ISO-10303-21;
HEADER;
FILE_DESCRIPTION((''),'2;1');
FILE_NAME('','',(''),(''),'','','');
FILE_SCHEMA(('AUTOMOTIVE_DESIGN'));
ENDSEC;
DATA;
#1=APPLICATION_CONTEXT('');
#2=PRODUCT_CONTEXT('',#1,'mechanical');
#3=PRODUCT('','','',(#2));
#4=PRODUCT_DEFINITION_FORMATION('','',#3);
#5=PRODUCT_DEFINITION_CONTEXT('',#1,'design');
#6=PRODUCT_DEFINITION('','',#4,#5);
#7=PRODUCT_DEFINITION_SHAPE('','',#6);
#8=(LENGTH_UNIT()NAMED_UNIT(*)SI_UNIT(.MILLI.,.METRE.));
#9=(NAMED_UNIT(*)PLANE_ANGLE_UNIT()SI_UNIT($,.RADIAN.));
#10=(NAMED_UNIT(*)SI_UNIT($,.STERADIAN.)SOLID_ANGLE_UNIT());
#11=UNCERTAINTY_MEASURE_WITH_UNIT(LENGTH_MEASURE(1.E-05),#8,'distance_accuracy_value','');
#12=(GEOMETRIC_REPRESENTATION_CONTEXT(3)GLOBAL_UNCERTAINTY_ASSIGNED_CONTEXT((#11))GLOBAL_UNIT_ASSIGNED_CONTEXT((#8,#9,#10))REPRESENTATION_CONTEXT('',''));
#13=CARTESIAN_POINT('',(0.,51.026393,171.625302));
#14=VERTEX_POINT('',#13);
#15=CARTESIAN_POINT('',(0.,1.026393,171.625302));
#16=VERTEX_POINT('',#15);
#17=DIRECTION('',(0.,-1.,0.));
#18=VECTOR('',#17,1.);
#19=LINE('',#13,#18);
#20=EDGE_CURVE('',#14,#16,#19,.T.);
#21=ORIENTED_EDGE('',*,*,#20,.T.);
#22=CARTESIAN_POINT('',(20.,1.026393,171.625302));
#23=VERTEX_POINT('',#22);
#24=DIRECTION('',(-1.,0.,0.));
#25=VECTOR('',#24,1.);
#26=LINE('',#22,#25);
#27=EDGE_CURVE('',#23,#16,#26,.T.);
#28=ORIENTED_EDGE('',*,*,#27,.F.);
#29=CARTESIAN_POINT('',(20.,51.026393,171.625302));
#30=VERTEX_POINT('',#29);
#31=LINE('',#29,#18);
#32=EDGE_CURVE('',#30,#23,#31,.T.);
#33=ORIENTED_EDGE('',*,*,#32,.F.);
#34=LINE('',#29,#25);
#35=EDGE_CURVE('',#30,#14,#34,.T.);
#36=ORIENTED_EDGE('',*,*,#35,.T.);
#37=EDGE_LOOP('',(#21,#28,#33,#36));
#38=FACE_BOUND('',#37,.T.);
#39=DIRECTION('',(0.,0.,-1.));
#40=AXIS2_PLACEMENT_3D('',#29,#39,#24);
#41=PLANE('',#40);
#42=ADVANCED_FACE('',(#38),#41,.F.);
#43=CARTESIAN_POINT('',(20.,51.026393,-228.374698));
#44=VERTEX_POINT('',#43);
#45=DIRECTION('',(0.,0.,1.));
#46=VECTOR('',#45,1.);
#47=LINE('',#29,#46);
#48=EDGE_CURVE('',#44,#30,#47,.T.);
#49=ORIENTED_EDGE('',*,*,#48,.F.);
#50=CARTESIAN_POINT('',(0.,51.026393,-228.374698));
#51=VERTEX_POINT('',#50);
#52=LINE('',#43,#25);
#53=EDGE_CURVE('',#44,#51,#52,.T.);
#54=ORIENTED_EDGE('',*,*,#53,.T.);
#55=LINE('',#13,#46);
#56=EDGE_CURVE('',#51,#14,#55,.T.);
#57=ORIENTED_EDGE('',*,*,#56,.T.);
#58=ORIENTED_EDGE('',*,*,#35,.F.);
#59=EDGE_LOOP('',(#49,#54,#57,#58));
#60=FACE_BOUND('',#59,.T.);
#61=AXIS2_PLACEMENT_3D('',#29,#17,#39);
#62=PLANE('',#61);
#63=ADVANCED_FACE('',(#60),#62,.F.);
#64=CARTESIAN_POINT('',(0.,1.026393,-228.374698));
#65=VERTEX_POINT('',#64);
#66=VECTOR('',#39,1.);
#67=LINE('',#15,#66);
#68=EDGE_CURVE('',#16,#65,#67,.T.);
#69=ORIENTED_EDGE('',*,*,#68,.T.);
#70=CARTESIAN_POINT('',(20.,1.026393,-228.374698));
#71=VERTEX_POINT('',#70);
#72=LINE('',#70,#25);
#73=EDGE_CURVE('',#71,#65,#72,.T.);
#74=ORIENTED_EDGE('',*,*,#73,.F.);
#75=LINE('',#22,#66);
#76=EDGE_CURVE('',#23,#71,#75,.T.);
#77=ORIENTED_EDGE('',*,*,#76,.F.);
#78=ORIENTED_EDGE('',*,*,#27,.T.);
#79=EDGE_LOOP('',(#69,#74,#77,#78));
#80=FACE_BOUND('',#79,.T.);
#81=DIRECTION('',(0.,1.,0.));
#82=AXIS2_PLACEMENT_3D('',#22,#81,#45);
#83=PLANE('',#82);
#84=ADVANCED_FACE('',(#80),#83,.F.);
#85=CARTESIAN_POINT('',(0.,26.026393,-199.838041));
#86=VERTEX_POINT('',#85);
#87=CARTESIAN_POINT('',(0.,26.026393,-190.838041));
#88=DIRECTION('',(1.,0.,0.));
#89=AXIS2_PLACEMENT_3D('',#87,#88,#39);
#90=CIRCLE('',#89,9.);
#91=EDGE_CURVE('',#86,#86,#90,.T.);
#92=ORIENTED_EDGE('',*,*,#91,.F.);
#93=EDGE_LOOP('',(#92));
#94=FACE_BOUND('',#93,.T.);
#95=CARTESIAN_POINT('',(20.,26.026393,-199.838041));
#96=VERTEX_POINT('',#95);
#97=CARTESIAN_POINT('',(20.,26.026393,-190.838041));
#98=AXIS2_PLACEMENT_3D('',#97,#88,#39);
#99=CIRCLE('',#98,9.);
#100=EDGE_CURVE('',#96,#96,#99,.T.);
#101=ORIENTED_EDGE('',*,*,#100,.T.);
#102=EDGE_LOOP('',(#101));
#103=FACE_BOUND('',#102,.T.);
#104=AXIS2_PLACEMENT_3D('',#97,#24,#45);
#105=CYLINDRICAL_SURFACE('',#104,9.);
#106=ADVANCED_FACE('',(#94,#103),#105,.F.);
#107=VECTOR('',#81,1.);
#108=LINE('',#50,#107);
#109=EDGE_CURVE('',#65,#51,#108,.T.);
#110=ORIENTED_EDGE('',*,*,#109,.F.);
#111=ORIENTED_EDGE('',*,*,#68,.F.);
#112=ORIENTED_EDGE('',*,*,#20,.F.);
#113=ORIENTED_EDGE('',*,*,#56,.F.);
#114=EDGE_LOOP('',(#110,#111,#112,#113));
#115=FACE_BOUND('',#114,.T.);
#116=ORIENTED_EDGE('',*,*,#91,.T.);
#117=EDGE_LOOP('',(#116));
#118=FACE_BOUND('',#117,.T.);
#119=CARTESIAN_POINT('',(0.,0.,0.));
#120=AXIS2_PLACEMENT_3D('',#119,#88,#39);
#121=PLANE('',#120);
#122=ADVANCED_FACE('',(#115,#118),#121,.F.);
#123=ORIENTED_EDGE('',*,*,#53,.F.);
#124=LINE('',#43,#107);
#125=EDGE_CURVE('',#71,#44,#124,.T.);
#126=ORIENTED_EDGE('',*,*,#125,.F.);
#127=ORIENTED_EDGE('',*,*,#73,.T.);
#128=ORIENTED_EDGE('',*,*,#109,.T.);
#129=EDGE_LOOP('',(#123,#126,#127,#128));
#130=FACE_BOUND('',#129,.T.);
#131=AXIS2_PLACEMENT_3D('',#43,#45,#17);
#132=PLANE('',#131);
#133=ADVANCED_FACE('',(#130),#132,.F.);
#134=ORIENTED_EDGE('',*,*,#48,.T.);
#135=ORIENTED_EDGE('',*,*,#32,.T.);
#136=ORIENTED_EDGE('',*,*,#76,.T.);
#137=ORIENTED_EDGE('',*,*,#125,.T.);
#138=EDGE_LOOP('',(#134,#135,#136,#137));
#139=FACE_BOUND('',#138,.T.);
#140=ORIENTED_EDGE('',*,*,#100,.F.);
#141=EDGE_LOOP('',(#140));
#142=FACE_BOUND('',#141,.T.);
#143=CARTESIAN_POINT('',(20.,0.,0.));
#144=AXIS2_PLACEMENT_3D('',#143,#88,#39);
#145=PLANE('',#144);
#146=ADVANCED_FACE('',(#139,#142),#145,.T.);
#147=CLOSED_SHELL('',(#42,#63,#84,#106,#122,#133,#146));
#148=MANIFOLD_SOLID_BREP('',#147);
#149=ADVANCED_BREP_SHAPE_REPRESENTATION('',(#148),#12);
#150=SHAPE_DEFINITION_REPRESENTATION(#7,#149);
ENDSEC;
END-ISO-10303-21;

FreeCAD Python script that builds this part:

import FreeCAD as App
import Part
import Sketcher
Q = App.Units.Quantity


def add_polygon(sketch, points):
    """Adds a closed chain of lines whose ends are joined by coincident constraints."""
    first, n = sketch.GeometryCount, len(points)
    for a, b in zip(points, points[1:] + points[:1]):
        sketch.addGeometry(Part.LineSegment(App.Vector(*a, 0), App.Vector(*b, 0)), False)
    for i in range(n):
        sketch.addConstraint(Sketcher.Constraint("Coincident", first + i, 2, first + (i + 1) % n, 1))

doc = App.newDocument("Part")
body = doc.addObject("PartDesign::Body", "Body")

# Sketch on YZ plane
sketch1 = body.newObject("Sketcher::SketchObject", "Sketch")
sketch1.AttachmentSupport = (doc.getObject("YZ_Plane"), [""])
sketch1.MapMode = "FlatFace"
add_polygon(sketch1, [(51, 172), (1, 172), (1, -228), (51, -228)])  # lines 0-3
sketch1.addGeometry(Part.Circle(App.Vector(26, -191, 0), App.Vector(0, 0, 1), 9), False)  # 4
sketch1.addConstraint(Sketcher.Constraint("Horizontal", 0))
sketch1.addConstraint(Sketcher.Constraint("Vertical", 1))
sketch1.addConstraint(Sketcher.Constraint("Horizontal", 2))
sketch1.addConstraint(Sketcher.Constraint("Vertical", 3))
sketch1.addConstraint(Sketcher.Constraint("Diameter", 4, Q("18 mm")))
sketch1.addConstraint(Sketcher.Constraint("DistanceX", 0, 2, 0, 1, Q("50 mm")))
sketch1.addConstraint(Sketcher.Constraint("DistanceY", 1, 2, 1, 1, Q("400 mm")))
sketch1.addConstraint(Sketcher.Constraint("DistanceX", 0, 2, 4, 3, Q("25 mm")))
sketch1.addConstraint(Sketcher.Constraint("DistanceY", 4, 3, -1, 1, Q("190.838041 mm")))
sketch1.addConstraint(Sketcher.Constraint("DistanceX", -1, 1, 4, 3, Q("26.026393 mm")))
sketch1.addConstraint(Sketcher.Constraint("DistanceY", -1, 1, 0, 2, Q("171.625302 mm")))
pad1 = body.newObject("PartDesign::Pad", "Pad")
pad1.Profile = sketch1
pad1.Length = 20

doc.recompute()
